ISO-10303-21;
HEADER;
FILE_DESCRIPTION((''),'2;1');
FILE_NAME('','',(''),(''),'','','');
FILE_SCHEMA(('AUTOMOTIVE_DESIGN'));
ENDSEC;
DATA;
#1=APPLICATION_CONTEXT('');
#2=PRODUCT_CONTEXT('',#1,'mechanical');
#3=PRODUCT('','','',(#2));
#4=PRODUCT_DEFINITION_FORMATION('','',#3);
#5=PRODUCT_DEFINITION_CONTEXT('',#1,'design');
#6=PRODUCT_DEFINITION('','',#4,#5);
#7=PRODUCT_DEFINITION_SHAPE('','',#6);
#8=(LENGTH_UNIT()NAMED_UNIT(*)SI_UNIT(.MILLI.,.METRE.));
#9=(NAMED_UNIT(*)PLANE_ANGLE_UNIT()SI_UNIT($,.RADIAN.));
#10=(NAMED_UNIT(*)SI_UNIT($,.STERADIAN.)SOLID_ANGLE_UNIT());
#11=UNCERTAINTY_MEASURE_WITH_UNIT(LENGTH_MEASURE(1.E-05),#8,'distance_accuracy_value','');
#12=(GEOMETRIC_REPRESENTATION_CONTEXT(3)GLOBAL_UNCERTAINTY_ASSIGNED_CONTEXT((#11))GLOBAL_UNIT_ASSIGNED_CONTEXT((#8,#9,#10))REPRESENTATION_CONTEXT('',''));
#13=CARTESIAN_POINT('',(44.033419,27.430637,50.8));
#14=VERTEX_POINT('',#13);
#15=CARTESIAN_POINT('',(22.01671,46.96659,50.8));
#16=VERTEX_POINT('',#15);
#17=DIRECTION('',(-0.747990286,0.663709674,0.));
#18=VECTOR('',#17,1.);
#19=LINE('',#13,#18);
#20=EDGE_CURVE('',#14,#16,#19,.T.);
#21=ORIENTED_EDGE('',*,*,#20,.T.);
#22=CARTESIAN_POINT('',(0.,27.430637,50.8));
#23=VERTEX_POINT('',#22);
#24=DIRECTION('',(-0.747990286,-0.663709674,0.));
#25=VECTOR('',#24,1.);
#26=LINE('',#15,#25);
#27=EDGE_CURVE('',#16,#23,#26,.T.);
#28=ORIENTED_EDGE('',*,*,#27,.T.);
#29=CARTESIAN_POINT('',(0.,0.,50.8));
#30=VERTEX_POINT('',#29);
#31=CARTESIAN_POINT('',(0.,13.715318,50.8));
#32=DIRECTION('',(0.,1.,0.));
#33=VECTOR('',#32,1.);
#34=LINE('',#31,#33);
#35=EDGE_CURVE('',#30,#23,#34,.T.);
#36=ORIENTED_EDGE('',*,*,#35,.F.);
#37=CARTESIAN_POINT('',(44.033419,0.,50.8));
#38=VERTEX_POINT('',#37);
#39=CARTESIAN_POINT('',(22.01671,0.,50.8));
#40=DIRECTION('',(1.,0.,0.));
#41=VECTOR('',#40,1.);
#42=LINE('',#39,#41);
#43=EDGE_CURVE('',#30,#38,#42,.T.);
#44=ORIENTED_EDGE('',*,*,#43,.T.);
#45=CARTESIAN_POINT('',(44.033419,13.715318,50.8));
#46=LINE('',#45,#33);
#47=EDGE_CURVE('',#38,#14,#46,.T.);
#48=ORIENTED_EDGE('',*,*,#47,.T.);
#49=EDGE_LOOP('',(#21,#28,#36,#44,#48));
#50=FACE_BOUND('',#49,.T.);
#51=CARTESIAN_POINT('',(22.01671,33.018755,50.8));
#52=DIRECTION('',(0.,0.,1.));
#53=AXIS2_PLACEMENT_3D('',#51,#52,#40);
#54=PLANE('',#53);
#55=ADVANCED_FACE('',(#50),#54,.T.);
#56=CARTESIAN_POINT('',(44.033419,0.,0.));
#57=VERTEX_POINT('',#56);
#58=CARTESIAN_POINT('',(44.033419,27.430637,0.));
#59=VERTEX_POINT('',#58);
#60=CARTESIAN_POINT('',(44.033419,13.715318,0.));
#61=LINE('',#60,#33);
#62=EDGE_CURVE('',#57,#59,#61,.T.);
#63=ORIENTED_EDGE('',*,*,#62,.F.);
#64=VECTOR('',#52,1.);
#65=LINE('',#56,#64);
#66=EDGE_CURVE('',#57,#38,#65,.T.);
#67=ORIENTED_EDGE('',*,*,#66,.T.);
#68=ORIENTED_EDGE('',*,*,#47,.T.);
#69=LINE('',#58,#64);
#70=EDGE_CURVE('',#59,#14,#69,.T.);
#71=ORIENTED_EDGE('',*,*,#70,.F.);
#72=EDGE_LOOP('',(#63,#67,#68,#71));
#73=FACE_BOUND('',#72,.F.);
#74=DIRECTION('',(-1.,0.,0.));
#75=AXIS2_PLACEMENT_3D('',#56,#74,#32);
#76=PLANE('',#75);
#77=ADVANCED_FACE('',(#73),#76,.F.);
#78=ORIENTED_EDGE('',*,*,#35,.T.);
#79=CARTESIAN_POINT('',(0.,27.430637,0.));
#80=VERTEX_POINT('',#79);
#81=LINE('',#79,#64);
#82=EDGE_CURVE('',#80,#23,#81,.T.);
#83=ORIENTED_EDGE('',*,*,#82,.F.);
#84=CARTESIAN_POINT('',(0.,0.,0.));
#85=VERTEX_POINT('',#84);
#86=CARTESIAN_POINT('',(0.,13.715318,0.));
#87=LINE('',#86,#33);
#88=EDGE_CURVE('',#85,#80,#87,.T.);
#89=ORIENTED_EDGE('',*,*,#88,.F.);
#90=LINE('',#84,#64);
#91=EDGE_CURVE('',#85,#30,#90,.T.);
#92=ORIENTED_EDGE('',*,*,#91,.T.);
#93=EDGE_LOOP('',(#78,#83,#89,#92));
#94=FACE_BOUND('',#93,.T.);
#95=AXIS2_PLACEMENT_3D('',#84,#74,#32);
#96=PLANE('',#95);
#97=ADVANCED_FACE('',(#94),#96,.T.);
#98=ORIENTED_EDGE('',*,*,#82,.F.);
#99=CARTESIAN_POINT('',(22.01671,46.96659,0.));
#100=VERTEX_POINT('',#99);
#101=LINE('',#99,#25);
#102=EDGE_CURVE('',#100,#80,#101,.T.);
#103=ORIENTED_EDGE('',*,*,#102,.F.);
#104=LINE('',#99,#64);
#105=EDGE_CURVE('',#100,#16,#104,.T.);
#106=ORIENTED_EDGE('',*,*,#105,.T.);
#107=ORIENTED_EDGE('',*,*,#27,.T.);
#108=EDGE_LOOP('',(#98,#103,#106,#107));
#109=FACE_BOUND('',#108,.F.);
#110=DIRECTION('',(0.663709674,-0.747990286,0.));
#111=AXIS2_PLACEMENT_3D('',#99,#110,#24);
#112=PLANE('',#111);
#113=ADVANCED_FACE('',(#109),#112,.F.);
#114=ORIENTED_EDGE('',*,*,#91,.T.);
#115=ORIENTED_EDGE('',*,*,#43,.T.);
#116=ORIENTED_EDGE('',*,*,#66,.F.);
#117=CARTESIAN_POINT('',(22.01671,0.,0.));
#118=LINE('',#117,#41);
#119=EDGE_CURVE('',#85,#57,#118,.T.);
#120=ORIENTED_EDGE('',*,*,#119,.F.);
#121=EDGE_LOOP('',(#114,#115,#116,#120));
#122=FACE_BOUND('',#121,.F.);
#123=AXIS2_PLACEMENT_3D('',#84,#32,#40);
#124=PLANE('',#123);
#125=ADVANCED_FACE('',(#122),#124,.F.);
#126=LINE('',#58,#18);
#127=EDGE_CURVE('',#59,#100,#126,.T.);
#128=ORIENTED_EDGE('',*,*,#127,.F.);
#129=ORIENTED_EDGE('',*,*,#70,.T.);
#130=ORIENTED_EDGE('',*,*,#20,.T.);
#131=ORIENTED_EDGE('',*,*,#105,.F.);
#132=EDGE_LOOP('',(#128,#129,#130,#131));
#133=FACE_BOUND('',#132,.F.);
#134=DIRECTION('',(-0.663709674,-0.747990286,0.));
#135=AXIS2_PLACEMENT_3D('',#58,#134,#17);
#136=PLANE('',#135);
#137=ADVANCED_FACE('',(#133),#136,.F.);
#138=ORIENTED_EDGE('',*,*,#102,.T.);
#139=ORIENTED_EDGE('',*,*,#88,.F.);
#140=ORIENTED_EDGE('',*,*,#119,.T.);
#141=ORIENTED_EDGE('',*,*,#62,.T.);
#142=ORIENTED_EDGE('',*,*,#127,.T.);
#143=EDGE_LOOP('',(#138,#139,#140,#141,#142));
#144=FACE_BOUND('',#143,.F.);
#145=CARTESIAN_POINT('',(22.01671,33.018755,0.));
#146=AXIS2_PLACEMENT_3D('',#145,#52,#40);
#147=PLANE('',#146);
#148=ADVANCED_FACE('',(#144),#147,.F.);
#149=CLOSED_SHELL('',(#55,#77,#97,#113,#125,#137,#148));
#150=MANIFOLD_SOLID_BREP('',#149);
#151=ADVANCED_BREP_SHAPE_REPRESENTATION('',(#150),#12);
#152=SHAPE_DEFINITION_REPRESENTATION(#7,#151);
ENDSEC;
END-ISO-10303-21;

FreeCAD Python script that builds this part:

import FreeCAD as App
import Part
import Sketcher
Q = App.Units.Quantity

doc = App.newDocument("Part")
body = doc.addObject("PartDesign::Body", "Body")

# Sketch on XY plane
sketch1 = doc.addObject("Sketcher::SketchObject", "Sketch")
body.addObject(sketch1)
sketch1.AttachmentSupport = (doc.XY_Plane, [""])
sketch1.MapMode = "FlatFace"
sketch1.addGeometry([
    Part.LineSegment(App.Vector(0, 27.430637, 0), App.Vector(0, 0, 0)),
    Part.LineSegment(App.Vector(0, 0, 0), App.Vector(44.033419, 0, 0)),
    Part.LineSegment(App.Vector(44.033419, 0, 0), App.Vector(44.033419, 27.430637, 0)),
    Part.LineSegment(App.Vector(44.033419, 27.430637, 0), App.Vector(0, 27.430637, 0)),
], False)
sketch1.addConstraint([
    Sketcher.Constraint("Coincident", 0, 2, 1, 1),
    Sketcher.Constraint("Coincident", 1, 2, 2, 1),
    Sketcher.Constraint("Coincident", 2, 2, 3, 1),
    Sketcher.Constraint("Coincident", 3, 2, 0, 1),
    Sketcher.Constraint("Vertical", 0),
    Sketcher.Constraint("Horizontal", 1),
    Sketcher.Constraint("Vertical", 2),
    Sketcher.Constraint("Horizontal", 3),
    Sketcher.Constraint("Coincident", 0, 2, -1, 1),
    Sketcher.Constraint("DistanceX", 1, 1, 1, 2, 44.033419),
    Sketcher.Constraint("DistanceY", 0, 2, 0, 1, 27.430637),
])
pad1 = doc.addObject("PartDesign::Pad", "Pad")
body.addObject(pad1)
pad1.Profile = sketch1
pad1.Length = Q("2 in")

# Sketch on XY plane
sketch2 = doc.addObject("Sketcher::SketchObject", "Sketch001")
body.addObject(sketch2)
sketch2.AttachmentSupport = (doc.XY_Plane, [""])
sketch2.MapMode = "FlatFace"
sketch2.addGeometry([
    Part.LineSegment(App.Vector(22.01671, 46.96659, 0), App.Vector(0, 27.430637, 0)),
    Part.LineSegment(App.Vector(0, 27.430637, 0), App.Vector(44.033419, 27.430637, 0)),
    Part.LineSegment(App.Vector(44.033419, 27.430637, 0), App.Vector(22.01671, 46.96659, 0)),
], False)
sketch2.addConstraint([
    Sketcher.Constraint("Coincident", 0, 2, 1, 1),
    Sketcher.Constraint("Coincident", 1, 2, 2, 1),
    Sketcher.Constraint("Coincident", 2, 2, 0, 1),
    Sketcher.Constraint("Horizontal", 1),
    Sketcher.Constraint("PointOnObject", 0, 2, -2),
    Sketcher.Constraint("Equal", 0, 2),
    Sketcher.Constraint("DistanceX", 1, 1, 1, 2, 44.033419),
    Sketcher.Constraint("DistanceY", -1, 1, 2, 2, 46.96659),
    Sketcher.Constraint("Distance", 0, 29.434486),
])
pad2 = doc.addObject("PartDesign::Pad", "Pad001")
body.addObject(pad2)
pad2.Profile = sketch2
pad2.Length = Q("2 in")

doc.recompute()
